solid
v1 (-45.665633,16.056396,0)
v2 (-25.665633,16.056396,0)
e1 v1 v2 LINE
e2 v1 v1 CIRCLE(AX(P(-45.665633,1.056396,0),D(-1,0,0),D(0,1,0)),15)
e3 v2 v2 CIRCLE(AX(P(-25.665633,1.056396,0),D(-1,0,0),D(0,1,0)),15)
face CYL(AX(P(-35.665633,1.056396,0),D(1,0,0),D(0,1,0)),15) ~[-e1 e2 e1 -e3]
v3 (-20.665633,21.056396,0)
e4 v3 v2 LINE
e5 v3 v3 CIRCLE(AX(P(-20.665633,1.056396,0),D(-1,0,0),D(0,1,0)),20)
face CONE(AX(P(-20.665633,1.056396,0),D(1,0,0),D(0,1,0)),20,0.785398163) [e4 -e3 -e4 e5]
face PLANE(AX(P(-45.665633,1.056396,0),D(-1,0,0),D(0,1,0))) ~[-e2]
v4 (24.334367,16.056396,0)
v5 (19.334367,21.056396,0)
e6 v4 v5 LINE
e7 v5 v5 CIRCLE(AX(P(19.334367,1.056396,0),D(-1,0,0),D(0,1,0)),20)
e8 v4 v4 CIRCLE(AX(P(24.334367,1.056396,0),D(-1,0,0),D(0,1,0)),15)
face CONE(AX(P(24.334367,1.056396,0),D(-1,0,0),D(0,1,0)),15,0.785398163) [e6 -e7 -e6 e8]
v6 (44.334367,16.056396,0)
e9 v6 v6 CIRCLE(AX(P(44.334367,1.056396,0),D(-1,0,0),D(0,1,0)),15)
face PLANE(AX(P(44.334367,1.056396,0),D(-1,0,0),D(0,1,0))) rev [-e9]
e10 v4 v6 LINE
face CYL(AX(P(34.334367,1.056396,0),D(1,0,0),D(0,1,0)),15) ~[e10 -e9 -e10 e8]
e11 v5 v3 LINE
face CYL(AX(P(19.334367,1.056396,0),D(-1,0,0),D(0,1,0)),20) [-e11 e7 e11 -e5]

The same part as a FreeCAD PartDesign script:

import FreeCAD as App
import Part
import Sketcher

V = App.Vector
Q = App.Units.Quantity

doc = App.newDocument("Part")
body = doc.addObject("PartDesign::Body", "Body")

# Sketch on XY plane
sketch1 = doc.addObject("Sketcher::SketchObject", "Sketch")
body.addObject(sketch1)
sketch1.AttachmentSupport = (doc.XY_Plane, [""])
sketch1.MapMode = "FlatFace"
sketch1.addGeometry(Part.LineSegment(V(-20.665633, 21.056396, 0), V(-25.665633, 16.056396, 0)), False)
sketch1.addGeometry(Part.LineSegment(V(-25.665633, 16.056396, 0), V(-45.665633, 16.056396, 0)), False)
sketch1.addGeometry(Part.LineSegment(V(-45.665633, 16.056396, 0), V(-45.665633, 1.056396, 0)), False)
sketch1.addGeometry(Part.LineSegment(V(-45.665633, 1.056396, 0), V(44.334367, 1.056396, 0)), False)
sketch1.addGeometry(Part.LineSegment(V(44.334367, 1.056396, 0), V(44.334367, 16.056396, 0)), False)
sketch1.addGeometry(Part.LineSegment(V(44.334367, 16.056396, 0), V(24.334367, 16.056396, 0)), False)
sketch1.addGeometry(Part.LineSegment(V(24.334367, 16.056396, 0), V(19.334367, 21.056396, 0)), False)
sketch1.addGeometry(Part.LineSegment(V(19.334367, 21.056396, 0), V(-20.665633, 21.056396, 0)), False)
sketch1.addGeometry(Part.LineSegment(V(44.334367, 1.056396, 0), V(-45.665633, 1.056396, 0)), True)  # axis
sketch1.addConstraint(Sketcher.Constraint("Coincident", 0, 2, 1, 1))
sketch1.addConstraint(Sketcher.Constraint("Coincident", 1, 2, 2, 1))
sketch1.addConstraint(Sketcher.Constraint("Coincident", 2, 2, 3, 1))
sketch1.addConstraint(Sketcher.Constraint("Coincident", 3, 2, 4, 1))
sketch1.addConstraint(Sketcher.Constraint("Coincident", 4, 2, 5, 1))
sketch1.addConstraint(Sketcher.Constraint("Coincident", 5, 2, 6, 1))
sketch1.addConstraint(Sketcher.Constraint("Coincident", 6, 2, 7, 1))
sketch1.addConstraint(Sketcher.Constraint("Coincident", 7, 2, 0, 1))
sketch1.addConstraint(Sketcher.Constraint("Horizontal", 1))
sketch1.addConstraint(Sketcher.Constraint("Vertical", 2))
sketch1.addConstraint(Sketcher.Constraint("Horizontal", 3))
sketch1.addConstraint(Sketcher.Constraint("Vertical", 4))
sketch1.addConstraint(Sketcher.Constraint("Horizontal", 5))
sketch1.addConstraint(Sketcher.Constraint("Horizontal", 7))
sketch1.addConstraint(Sketcher.Constraint("Horizontal", 8))
sketch1.addConstraint(Sketcher.Constraint("Coincident", 8, 1, 3, 2))
sketch1.addConstraint(Sketcher.Constraint("Perpendicular", 0, 6))
sketch1.addConstraint(Sketcher.Constraint("Horizontal", 1, 2, 4, 2))
sketch1.addConstraint(Sketcher.Constraint("Vertical", 1, 2, 8, 2))
sketch1.addConstraint(Sketcher.Constraint("Equal", 1, 5))
sketch1.addConstraint(Sketcher.Constraint("Equal", 0, 6))
sketch1.addConstraint(Sketcher.Constraint("DistanceX", 1, 2, 1, 1, Q("20 mm")))
sketch1.addConstraint(Sketcher.Constraint("DistanceX", 3, 1, 3, 2, Q("90 mm")))
sketch1.addConstraint(Sketcher.Constraint("DistanceX", 7, 2, 7, 1, Q("40 mm")))
sketch1.addConstraint(Sketcher.Constraint("DistanceY", 2, 2, 2, 1, Q("15 mm")))
sketch1.addConstraint(Sketcher.Constraint("DistanceX", 0, 2, -1, 1, Q("25.665633 mm")))
sketch1.addConstraint(Sketcher.Constraint("DistanceY", -1, 1, 0, 2, Q("16.056396 mm")))
revolution = doc.addObject("PartDesign::Revolution", "Revolution")
body.addObject(revolution)
revolution.Profile = sketch1
revolution.ReferenceAxis = (sketch1, ["Axis0"])
revolution.Angle = 360

doc.recompute()
